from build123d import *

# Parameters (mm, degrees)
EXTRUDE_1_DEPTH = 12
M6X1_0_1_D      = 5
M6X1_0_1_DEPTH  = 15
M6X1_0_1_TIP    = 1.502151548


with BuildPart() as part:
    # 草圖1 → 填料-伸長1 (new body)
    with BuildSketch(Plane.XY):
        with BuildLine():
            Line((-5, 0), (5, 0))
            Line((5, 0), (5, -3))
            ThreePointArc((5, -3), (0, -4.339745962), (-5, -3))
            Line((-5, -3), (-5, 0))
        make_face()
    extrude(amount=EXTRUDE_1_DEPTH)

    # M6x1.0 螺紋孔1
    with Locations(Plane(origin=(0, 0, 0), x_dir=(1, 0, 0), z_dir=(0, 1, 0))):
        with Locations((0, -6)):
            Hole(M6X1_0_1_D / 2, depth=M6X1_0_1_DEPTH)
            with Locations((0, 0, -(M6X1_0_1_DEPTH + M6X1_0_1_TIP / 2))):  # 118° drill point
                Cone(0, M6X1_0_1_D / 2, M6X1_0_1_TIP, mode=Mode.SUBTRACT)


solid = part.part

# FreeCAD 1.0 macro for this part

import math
import FreeCAD as App
import Part
import Sketcher
from FreeCAD import Vector

doc = App.newDocument("Part")
params = doc.addObject("Spreadsheet::Sheet", "Params")
for row, (alias, value) in enumerate([
    ("sketch1_radius", "10 mm"),
    ("sketch1_width", "10 mm"),
    ("sketch1_height", "3 mm"),
    ("pad1_length", "12 mm"),
    ("sketch2_diameter", "5 mm"),
    ("hole_diameter", "5 mm"),
    ("hole_depth", "15 mm"),
], start=1):
    params.set(f"A{row}", alias)
    params.set(f"B{row}", "=" + value)
    params.setAlias(f"B{row}", alias)

body = doc.addObject("PartDesign::Body", "Body")

sketch1 = body.newObject("Sketcher::SketchObject", "Sketch")
sketch1.AttachmentSupport = (doc.getObject("XY_Plane"), [""])
sketch1.MapMode = "FlatFace"
sketch1.addGeometry([
    Part.LineSegment(Vector(5, 0, 0), Vector(-5, 0, 0)),
    Part.LineSegment(Vector(-5, 0, 0), Vector(-5, -3, 0)),
    Part.ArcOfCircle(Part.Circle(Vector(0, 5.7, 0), Vector(0, 0, 1), 10), math.radians(-120), math.radians(-60)),
    Part.LineSegment(Vector(5, -3, 0), Vector(5, 0, 0)),
], False)
sketch1.addConstraint([
    Sketcher.Constraint("Coincident", 0, 2, 1, 1),
    Sketcher.Constraint("Coincident", 1, 2, 2, 1),
    Sketcher.Constraint("Coincident", 2, 2, 3, 1),
    Sketcher.Constraint("Coincident", 3, 2, 0, 1),
    Sketcher.Constraint("Horizontal", 0),
    Sketcher.Constraint("Vertical", 1),
    Sketcher.Constraint("Vertical", 3),
    Sketcher.Constraint("Symmetric", 0, 2, 3, 2, -1, 1),
    Sketcher.Constraint("PointOnObject", 2, 3, -2),
    Sketcher.Constraint("Radius", 2, 10.0),
    Sketcher.Constraint("DistanceX", 0, 2, 0, 1, 10.0),
    Sketcher.Constraint("DistanceY", 1, 2, 1, 1, 3.0),
])
sketch1.setExpression("Constraints[9]", "Params.sketch1_radius")
sketch1.setExpression("Constraints[10]", "Params.sketch1_width")
sketch1.setExpression("Constraints[11]", "Params.sketch1_height")
pad1 = body.newObject("PartDesign::Pad", "Pad")
pad1.Profile = sketch1
pad1.setExpression("Length", "Params.pad1_length")

sketch2 = body.newObject("Sketcher::SketchObject", "Sketch001")
sketch2.AttachmentSupport = (doc.getObject("XZ_Plane"), [""])
sketch2.MapMode = "FlatFace"
sketch2.addGeometry(Part.Circle(Vector(0, 6, 0), Vector(0, 0, 1), 2.5), False)
sketch2.addConstraint([
    Sketcher.Constraint("PointOnObject", 0, 3, -2),
    Sketcher.Constraint("Diameter", 0, 5.0),
    Sketcher.Constraint("DistanceY", -1, 1, 0, 3, 6.0),
])
sketch2.setExpression("Constraints[1]", "Params.sketch2_diameter")
doc.recompute()
hole = body.newObject("PartDesign::Hole", "Hole")
hole.Profile = sketch2
hole.ThreadType = "None"
hole.setExpression("Diameter", "Params.hole_diameter")
hole.DepthType = "Dimension"
hole.setExpression("Depth", "Params.hole_depth")
hole.DrillPoint = "Angled"
hole.DrillPointAngle = 118
hole.Reversed = True

doc.recompute()
